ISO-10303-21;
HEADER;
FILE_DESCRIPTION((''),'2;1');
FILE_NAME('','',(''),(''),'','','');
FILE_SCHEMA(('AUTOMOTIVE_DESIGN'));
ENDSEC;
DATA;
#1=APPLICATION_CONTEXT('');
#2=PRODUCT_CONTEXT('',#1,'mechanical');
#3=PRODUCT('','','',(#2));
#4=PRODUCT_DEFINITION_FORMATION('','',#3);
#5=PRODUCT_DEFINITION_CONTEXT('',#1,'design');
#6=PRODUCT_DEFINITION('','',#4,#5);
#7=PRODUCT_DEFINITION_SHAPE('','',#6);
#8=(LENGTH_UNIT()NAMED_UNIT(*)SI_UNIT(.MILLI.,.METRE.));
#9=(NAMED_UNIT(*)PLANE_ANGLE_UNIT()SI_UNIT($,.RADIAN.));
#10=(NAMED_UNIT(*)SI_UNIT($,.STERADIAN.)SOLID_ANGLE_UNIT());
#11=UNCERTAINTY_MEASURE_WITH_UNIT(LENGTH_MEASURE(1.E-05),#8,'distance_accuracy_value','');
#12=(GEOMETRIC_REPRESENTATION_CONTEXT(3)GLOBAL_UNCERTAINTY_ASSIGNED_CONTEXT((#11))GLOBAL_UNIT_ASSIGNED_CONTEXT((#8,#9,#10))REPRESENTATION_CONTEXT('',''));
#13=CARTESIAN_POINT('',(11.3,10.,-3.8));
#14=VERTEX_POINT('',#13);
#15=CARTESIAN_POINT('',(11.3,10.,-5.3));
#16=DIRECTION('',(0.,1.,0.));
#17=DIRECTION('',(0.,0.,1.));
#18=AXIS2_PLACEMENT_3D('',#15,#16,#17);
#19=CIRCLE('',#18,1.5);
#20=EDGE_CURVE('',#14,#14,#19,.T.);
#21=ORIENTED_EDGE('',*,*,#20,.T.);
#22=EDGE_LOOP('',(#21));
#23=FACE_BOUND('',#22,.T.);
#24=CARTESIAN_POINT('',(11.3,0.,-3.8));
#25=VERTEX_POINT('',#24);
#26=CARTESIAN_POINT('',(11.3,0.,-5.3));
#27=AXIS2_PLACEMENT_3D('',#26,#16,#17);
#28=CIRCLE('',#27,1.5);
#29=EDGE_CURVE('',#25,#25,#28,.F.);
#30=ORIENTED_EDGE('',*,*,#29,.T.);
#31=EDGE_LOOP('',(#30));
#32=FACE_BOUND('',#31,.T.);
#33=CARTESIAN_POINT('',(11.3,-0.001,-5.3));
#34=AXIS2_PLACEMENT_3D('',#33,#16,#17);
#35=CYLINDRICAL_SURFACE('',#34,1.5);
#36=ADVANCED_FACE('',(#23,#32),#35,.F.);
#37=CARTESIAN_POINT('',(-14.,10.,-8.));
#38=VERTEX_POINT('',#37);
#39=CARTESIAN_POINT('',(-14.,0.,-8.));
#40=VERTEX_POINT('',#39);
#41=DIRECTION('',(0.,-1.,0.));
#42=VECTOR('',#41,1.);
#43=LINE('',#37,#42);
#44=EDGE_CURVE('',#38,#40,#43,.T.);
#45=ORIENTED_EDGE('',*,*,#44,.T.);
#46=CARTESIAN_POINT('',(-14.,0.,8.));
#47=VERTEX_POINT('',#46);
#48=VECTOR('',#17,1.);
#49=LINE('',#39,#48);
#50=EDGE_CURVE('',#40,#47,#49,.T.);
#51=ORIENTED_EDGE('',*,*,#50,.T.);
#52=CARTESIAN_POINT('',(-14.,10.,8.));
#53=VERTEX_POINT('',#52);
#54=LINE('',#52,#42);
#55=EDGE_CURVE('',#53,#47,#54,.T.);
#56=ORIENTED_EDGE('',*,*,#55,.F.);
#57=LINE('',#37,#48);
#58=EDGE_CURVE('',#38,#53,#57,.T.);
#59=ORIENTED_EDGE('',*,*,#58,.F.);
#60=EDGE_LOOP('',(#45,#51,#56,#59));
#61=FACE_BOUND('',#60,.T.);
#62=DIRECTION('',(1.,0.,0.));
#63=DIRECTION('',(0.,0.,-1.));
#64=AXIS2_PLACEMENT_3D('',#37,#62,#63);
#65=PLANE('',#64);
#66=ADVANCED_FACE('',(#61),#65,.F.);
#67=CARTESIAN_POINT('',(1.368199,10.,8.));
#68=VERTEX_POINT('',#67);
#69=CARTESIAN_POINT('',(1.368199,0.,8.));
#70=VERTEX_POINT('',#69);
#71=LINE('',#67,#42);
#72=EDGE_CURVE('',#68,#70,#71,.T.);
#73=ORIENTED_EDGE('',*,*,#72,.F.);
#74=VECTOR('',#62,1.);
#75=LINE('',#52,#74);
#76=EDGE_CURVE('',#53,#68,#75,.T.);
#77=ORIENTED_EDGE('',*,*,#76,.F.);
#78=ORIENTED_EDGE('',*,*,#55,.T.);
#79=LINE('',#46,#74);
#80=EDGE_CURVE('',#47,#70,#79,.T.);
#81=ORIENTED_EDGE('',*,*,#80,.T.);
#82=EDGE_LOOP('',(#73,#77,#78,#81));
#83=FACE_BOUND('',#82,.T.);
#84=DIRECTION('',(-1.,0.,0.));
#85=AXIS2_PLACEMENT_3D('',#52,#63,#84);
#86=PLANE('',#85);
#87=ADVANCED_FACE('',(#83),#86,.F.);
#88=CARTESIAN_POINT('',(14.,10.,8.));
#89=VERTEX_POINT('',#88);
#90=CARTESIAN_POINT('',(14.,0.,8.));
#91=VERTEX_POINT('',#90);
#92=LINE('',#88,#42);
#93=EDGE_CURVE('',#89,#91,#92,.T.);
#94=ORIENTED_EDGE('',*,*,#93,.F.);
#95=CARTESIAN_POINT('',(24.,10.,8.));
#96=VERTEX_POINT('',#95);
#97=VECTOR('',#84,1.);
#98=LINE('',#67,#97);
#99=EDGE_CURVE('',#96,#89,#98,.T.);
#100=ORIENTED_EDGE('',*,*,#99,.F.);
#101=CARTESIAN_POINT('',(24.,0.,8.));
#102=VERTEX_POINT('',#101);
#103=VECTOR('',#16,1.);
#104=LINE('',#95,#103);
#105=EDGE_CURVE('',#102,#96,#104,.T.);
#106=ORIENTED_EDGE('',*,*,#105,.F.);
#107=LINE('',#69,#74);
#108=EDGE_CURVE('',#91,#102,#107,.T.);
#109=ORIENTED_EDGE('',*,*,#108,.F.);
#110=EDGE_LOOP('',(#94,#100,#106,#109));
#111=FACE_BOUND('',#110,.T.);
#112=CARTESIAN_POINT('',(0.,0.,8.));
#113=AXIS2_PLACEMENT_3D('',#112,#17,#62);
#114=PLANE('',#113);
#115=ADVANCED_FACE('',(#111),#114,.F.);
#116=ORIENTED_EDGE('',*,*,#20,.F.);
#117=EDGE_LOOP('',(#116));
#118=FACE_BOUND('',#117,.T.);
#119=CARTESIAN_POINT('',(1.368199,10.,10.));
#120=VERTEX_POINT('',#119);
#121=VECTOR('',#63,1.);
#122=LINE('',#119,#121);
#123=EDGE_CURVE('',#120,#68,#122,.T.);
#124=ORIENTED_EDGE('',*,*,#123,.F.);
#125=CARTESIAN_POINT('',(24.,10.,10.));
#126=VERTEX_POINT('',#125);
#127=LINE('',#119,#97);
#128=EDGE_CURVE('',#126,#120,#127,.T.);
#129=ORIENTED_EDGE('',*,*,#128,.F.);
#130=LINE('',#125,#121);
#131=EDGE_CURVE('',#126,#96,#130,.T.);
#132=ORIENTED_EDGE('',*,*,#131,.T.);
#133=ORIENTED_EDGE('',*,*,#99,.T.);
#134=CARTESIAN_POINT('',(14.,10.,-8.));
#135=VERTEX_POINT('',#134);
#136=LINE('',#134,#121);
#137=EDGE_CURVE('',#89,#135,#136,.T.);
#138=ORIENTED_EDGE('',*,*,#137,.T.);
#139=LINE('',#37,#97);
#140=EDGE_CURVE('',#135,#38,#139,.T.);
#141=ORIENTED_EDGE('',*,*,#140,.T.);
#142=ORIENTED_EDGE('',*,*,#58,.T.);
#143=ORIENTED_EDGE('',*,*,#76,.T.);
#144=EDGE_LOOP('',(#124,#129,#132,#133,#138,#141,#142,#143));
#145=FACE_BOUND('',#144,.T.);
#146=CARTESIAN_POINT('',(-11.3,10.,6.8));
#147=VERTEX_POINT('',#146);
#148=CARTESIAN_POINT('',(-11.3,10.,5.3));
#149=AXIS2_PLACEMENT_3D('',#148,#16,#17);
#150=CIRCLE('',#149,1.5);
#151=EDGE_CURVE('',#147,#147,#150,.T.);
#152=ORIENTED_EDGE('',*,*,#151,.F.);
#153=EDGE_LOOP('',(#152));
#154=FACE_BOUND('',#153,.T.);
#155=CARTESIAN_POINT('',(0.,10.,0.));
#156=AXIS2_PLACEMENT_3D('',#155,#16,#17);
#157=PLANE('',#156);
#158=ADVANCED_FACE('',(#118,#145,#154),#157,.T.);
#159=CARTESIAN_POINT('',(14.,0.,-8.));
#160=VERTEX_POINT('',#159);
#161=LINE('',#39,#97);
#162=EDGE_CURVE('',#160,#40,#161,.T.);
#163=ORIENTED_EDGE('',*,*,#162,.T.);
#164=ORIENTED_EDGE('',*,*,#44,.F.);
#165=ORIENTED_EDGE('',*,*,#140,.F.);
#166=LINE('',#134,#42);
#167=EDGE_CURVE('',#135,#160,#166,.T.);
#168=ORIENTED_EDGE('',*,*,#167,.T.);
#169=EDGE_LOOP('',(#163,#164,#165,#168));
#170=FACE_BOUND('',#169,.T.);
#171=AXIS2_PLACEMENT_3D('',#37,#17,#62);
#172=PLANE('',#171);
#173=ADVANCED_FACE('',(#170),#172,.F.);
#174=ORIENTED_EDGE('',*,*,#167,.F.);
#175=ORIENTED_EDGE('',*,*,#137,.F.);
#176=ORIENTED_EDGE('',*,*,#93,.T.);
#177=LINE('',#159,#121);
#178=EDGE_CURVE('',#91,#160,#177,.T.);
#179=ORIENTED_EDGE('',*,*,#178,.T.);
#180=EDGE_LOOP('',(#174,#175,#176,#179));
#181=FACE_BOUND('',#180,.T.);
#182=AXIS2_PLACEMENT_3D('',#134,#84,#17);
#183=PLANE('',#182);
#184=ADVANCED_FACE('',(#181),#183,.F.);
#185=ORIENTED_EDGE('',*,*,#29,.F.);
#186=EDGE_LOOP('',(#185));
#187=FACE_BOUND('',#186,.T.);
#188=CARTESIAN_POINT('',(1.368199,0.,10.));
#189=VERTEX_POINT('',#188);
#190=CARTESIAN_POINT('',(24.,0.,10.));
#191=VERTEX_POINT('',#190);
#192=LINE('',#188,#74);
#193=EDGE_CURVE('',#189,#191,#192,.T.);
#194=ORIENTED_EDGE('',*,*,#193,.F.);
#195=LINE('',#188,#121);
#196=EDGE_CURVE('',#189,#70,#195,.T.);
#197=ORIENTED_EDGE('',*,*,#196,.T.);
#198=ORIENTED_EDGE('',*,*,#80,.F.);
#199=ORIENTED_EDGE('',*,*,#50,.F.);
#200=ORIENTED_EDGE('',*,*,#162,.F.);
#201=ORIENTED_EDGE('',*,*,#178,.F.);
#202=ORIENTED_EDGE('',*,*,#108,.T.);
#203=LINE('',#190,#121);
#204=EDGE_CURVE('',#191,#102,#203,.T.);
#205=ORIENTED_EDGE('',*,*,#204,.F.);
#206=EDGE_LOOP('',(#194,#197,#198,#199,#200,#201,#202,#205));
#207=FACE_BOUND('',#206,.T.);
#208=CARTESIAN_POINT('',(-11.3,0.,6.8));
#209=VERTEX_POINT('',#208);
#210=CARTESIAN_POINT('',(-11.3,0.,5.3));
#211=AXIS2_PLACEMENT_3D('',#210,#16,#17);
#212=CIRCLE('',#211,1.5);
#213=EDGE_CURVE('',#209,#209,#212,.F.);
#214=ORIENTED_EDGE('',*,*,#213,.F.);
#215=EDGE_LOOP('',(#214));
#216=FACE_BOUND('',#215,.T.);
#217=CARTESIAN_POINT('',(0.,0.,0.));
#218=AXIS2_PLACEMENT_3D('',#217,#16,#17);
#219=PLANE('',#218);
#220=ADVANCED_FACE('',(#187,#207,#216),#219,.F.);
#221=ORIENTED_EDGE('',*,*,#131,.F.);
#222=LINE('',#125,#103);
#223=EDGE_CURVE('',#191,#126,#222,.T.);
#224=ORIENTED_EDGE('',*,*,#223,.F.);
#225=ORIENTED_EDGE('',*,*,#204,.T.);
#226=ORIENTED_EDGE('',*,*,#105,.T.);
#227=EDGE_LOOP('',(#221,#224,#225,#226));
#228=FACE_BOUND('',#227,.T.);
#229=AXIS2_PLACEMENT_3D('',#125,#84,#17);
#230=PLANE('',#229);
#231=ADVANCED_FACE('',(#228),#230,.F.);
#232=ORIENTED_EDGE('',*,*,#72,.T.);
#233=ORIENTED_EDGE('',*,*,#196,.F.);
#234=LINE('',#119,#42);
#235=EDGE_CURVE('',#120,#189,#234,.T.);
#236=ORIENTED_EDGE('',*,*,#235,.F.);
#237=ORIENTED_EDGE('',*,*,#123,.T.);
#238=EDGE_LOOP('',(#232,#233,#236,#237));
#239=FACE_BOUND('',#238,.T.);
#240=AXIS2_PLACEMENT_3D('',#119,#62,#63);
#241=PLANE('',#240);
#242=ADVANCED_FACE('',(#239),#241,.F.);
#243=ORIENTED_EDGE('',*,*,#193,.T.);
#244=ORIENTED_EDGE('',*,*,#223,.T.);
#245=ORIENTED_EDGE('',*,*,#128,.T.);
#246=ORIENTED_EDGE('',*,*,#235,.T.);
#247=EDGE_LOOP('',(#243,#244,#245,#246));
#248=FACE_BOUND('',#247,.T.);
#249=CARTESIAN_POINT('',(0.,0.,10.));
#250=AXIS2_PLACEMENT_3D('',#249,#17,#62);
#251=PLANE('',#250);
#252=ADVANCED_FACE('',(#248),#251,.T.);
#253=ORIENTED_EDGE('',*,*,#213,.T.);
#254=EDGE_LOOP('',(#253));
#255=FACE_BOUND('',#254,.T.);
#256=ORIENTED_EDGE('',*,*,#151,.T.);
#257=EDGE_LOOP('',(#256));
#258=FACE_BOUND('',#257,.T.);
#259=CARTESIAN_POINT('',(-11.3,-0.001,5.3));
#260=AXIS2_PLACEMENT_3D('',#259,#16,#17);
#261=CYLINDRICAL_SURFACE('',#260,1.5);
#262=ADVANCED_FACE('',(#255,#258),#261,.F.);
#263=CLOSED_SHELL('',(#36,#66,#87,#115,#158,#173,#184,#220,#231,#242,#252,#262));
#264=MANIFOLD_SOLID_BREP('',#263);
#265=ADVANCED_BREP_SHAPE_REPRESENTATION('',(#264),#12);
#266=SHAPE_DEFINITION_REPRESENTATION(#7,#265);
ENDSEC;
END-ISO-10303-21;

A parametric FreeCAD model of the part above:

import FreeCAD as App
import Part
import Sketcher
from FreeCAD import Vector


def add_polygon(sketch, points):
    """Adds a closed chain of lines whose ends are joined by coincident constraints."""
    first, n = sketch.GeometryCount, len(points)
    for a, b in zip(points, points[1:] + points[:1]):
        sketch.addGeometry(Part.LineSegment(App.Vector(*a, 0), App.Vector(*b, 0)), False)
    for i in range(n):
        sketch.addConstraint(Sketcher.Constraint("Coincident", first + i, 2, first + (i + 1) % n, 1))

doc = App.newDocument("Part")
body = doc.addObject("PartDesign::Body", "Body")

sketch1 = doc.addObject("Sketcher::SketchObject", "Sketch")
body.addObject(sketch1)
sketch1.AttachmentSupport = (doc.XZ_Plane, [""])
sketch1.MapMode = "FlatFace"
add_polygon(sketch1, [(-14, -8), (-14, 8), (14, 8), (14, -8)])
sketch1.addConstraint([
    Sketcher.Constraint("Vertical", 0),
    Sketcher.Constraint("Horizontal", 1),
    Sketcher.Constraint("Vertical", 2),
    Sketcher.Constraint("Horizontal", 3),
    Sketcher.Constraint("Symmetric", 0, 2, 2, 2, -1, 1),
    Sketcher.Constraint("DistanceX", 1, 1, 1, 2, 28.0),
    Sketcher.Constraint("DistanceY", 0, 1, 0, 2, 16.0),
])
pad1 = doc.addObject("PartDesign::Pad", "Pad")
body.addObject(pad1)
pad1.Profile = sketch1
pad1.Length = 10
pad1.Reversed = True

sketch2 = doc.addObject("Sketcher::SketchObject", "Sketch001")
body.addObject(sketch2)
sketch2.AttachmentSupport = (doc.XZ_Plane, [""])
sketch2.MapMode = "FlatFace"
sketch2.AttachmentOffset = App.Placement(Vector(0, 0, -10), App.Rotation())
sketch2.addGeometry(Part.Circle(Vector(-11.3, 5.3, 0), Vector(0, 0, 1), 1.5), False)
sketch2.addConstraint([
    Sketcher.Constraint("Diameter", 0, 3.0),
    Sketcher.Constraint("DistanceX", 0, 3, -1, 1, 11.3),
    Sketcher.Constraint("DistanceY", -1, 1, 0, 3, 5.3),
])
pocket1 = doc.addObject("PartDesign::Pocket", "Pocket")
body.addObject(pocket1)
pocket1.Profile = sketch2
pocket1.Type = "UpToFirst"
pocket1.Reversed = True

sketch3 = doc.addObject("Sketcher::SketchObject", "Sketch002")
body.addObject(sketch3)
sketch3.AttachmentSupport = (doc.XZ_Plane, [""])
sketch3.MapMode = "FlatFace"
sketch3.AttachmentOffset = App.Placement(Vector(0, 0, -10), App.Rotation())
sketch3.addGeometry(Part.Circle(Vector(11.3, -5.3, 0), Vector(0, 0, 1), 1.5), False)
sketch3.addConstraint([
    Sketcher.Constraint("Diameter", 0, 3.0),
    Sketcher.Constraint("DistanceX", -1, 1, 0, 3, 11.3),
    Sketcher.Constraint("DistanceY", 0, 3, -1, 1, 5.3),
])
pocket2 = doc.addObject("PartDesign::Pocket", "Pocket001")
body.addObject(pocket2)
pocket2.Profile = sketch3
pocket2.Type = "UpToFirst"
pocket2.Reversed = True

sketch4 = doc.addObject("Sketcher::SketchObject", "Sketch003")
body.addObject(sketch4)
sketch4.AttachmentSupport = (doc.XY_Plane, [""])
sketch4.MapMode = "FlatFace"
sketch4.AttachmentOffset = App.Placement(Vector(0, 0, 8), App.Rotation())
add_polygon(sketch4, [(1, 10), (1, 0), (24, 0), (24, 10)])
sketch4.addConstraint([
    Sketcher.Constraint("Vertical", 0),
    Sketcher.Constraint("Horizontal", 1),
    Sketcher.Constraint("Vertical", 2),
    Sketcher.Constraint("Horizontal", 3),
    Sketcher.Constraint("PointOnObject", 0, 2, -1),
    Sketcher.Constraint("DistanceY", 0, 2, 0, 1, 10.0),
    Sketcher.Constraint("DistanceX", -1, 1, 1, 2, 24.0),
    Sketcher.Constraint("DistanceX", 1, 1, 1, 2, 22.631801),
])
pad2 = doc.addObject("PartDesign::Pad", "Pad001")
body.addObject(pad2)
pad2.Profile = sketch4
pad2.Length = 2

doc.recompute()
